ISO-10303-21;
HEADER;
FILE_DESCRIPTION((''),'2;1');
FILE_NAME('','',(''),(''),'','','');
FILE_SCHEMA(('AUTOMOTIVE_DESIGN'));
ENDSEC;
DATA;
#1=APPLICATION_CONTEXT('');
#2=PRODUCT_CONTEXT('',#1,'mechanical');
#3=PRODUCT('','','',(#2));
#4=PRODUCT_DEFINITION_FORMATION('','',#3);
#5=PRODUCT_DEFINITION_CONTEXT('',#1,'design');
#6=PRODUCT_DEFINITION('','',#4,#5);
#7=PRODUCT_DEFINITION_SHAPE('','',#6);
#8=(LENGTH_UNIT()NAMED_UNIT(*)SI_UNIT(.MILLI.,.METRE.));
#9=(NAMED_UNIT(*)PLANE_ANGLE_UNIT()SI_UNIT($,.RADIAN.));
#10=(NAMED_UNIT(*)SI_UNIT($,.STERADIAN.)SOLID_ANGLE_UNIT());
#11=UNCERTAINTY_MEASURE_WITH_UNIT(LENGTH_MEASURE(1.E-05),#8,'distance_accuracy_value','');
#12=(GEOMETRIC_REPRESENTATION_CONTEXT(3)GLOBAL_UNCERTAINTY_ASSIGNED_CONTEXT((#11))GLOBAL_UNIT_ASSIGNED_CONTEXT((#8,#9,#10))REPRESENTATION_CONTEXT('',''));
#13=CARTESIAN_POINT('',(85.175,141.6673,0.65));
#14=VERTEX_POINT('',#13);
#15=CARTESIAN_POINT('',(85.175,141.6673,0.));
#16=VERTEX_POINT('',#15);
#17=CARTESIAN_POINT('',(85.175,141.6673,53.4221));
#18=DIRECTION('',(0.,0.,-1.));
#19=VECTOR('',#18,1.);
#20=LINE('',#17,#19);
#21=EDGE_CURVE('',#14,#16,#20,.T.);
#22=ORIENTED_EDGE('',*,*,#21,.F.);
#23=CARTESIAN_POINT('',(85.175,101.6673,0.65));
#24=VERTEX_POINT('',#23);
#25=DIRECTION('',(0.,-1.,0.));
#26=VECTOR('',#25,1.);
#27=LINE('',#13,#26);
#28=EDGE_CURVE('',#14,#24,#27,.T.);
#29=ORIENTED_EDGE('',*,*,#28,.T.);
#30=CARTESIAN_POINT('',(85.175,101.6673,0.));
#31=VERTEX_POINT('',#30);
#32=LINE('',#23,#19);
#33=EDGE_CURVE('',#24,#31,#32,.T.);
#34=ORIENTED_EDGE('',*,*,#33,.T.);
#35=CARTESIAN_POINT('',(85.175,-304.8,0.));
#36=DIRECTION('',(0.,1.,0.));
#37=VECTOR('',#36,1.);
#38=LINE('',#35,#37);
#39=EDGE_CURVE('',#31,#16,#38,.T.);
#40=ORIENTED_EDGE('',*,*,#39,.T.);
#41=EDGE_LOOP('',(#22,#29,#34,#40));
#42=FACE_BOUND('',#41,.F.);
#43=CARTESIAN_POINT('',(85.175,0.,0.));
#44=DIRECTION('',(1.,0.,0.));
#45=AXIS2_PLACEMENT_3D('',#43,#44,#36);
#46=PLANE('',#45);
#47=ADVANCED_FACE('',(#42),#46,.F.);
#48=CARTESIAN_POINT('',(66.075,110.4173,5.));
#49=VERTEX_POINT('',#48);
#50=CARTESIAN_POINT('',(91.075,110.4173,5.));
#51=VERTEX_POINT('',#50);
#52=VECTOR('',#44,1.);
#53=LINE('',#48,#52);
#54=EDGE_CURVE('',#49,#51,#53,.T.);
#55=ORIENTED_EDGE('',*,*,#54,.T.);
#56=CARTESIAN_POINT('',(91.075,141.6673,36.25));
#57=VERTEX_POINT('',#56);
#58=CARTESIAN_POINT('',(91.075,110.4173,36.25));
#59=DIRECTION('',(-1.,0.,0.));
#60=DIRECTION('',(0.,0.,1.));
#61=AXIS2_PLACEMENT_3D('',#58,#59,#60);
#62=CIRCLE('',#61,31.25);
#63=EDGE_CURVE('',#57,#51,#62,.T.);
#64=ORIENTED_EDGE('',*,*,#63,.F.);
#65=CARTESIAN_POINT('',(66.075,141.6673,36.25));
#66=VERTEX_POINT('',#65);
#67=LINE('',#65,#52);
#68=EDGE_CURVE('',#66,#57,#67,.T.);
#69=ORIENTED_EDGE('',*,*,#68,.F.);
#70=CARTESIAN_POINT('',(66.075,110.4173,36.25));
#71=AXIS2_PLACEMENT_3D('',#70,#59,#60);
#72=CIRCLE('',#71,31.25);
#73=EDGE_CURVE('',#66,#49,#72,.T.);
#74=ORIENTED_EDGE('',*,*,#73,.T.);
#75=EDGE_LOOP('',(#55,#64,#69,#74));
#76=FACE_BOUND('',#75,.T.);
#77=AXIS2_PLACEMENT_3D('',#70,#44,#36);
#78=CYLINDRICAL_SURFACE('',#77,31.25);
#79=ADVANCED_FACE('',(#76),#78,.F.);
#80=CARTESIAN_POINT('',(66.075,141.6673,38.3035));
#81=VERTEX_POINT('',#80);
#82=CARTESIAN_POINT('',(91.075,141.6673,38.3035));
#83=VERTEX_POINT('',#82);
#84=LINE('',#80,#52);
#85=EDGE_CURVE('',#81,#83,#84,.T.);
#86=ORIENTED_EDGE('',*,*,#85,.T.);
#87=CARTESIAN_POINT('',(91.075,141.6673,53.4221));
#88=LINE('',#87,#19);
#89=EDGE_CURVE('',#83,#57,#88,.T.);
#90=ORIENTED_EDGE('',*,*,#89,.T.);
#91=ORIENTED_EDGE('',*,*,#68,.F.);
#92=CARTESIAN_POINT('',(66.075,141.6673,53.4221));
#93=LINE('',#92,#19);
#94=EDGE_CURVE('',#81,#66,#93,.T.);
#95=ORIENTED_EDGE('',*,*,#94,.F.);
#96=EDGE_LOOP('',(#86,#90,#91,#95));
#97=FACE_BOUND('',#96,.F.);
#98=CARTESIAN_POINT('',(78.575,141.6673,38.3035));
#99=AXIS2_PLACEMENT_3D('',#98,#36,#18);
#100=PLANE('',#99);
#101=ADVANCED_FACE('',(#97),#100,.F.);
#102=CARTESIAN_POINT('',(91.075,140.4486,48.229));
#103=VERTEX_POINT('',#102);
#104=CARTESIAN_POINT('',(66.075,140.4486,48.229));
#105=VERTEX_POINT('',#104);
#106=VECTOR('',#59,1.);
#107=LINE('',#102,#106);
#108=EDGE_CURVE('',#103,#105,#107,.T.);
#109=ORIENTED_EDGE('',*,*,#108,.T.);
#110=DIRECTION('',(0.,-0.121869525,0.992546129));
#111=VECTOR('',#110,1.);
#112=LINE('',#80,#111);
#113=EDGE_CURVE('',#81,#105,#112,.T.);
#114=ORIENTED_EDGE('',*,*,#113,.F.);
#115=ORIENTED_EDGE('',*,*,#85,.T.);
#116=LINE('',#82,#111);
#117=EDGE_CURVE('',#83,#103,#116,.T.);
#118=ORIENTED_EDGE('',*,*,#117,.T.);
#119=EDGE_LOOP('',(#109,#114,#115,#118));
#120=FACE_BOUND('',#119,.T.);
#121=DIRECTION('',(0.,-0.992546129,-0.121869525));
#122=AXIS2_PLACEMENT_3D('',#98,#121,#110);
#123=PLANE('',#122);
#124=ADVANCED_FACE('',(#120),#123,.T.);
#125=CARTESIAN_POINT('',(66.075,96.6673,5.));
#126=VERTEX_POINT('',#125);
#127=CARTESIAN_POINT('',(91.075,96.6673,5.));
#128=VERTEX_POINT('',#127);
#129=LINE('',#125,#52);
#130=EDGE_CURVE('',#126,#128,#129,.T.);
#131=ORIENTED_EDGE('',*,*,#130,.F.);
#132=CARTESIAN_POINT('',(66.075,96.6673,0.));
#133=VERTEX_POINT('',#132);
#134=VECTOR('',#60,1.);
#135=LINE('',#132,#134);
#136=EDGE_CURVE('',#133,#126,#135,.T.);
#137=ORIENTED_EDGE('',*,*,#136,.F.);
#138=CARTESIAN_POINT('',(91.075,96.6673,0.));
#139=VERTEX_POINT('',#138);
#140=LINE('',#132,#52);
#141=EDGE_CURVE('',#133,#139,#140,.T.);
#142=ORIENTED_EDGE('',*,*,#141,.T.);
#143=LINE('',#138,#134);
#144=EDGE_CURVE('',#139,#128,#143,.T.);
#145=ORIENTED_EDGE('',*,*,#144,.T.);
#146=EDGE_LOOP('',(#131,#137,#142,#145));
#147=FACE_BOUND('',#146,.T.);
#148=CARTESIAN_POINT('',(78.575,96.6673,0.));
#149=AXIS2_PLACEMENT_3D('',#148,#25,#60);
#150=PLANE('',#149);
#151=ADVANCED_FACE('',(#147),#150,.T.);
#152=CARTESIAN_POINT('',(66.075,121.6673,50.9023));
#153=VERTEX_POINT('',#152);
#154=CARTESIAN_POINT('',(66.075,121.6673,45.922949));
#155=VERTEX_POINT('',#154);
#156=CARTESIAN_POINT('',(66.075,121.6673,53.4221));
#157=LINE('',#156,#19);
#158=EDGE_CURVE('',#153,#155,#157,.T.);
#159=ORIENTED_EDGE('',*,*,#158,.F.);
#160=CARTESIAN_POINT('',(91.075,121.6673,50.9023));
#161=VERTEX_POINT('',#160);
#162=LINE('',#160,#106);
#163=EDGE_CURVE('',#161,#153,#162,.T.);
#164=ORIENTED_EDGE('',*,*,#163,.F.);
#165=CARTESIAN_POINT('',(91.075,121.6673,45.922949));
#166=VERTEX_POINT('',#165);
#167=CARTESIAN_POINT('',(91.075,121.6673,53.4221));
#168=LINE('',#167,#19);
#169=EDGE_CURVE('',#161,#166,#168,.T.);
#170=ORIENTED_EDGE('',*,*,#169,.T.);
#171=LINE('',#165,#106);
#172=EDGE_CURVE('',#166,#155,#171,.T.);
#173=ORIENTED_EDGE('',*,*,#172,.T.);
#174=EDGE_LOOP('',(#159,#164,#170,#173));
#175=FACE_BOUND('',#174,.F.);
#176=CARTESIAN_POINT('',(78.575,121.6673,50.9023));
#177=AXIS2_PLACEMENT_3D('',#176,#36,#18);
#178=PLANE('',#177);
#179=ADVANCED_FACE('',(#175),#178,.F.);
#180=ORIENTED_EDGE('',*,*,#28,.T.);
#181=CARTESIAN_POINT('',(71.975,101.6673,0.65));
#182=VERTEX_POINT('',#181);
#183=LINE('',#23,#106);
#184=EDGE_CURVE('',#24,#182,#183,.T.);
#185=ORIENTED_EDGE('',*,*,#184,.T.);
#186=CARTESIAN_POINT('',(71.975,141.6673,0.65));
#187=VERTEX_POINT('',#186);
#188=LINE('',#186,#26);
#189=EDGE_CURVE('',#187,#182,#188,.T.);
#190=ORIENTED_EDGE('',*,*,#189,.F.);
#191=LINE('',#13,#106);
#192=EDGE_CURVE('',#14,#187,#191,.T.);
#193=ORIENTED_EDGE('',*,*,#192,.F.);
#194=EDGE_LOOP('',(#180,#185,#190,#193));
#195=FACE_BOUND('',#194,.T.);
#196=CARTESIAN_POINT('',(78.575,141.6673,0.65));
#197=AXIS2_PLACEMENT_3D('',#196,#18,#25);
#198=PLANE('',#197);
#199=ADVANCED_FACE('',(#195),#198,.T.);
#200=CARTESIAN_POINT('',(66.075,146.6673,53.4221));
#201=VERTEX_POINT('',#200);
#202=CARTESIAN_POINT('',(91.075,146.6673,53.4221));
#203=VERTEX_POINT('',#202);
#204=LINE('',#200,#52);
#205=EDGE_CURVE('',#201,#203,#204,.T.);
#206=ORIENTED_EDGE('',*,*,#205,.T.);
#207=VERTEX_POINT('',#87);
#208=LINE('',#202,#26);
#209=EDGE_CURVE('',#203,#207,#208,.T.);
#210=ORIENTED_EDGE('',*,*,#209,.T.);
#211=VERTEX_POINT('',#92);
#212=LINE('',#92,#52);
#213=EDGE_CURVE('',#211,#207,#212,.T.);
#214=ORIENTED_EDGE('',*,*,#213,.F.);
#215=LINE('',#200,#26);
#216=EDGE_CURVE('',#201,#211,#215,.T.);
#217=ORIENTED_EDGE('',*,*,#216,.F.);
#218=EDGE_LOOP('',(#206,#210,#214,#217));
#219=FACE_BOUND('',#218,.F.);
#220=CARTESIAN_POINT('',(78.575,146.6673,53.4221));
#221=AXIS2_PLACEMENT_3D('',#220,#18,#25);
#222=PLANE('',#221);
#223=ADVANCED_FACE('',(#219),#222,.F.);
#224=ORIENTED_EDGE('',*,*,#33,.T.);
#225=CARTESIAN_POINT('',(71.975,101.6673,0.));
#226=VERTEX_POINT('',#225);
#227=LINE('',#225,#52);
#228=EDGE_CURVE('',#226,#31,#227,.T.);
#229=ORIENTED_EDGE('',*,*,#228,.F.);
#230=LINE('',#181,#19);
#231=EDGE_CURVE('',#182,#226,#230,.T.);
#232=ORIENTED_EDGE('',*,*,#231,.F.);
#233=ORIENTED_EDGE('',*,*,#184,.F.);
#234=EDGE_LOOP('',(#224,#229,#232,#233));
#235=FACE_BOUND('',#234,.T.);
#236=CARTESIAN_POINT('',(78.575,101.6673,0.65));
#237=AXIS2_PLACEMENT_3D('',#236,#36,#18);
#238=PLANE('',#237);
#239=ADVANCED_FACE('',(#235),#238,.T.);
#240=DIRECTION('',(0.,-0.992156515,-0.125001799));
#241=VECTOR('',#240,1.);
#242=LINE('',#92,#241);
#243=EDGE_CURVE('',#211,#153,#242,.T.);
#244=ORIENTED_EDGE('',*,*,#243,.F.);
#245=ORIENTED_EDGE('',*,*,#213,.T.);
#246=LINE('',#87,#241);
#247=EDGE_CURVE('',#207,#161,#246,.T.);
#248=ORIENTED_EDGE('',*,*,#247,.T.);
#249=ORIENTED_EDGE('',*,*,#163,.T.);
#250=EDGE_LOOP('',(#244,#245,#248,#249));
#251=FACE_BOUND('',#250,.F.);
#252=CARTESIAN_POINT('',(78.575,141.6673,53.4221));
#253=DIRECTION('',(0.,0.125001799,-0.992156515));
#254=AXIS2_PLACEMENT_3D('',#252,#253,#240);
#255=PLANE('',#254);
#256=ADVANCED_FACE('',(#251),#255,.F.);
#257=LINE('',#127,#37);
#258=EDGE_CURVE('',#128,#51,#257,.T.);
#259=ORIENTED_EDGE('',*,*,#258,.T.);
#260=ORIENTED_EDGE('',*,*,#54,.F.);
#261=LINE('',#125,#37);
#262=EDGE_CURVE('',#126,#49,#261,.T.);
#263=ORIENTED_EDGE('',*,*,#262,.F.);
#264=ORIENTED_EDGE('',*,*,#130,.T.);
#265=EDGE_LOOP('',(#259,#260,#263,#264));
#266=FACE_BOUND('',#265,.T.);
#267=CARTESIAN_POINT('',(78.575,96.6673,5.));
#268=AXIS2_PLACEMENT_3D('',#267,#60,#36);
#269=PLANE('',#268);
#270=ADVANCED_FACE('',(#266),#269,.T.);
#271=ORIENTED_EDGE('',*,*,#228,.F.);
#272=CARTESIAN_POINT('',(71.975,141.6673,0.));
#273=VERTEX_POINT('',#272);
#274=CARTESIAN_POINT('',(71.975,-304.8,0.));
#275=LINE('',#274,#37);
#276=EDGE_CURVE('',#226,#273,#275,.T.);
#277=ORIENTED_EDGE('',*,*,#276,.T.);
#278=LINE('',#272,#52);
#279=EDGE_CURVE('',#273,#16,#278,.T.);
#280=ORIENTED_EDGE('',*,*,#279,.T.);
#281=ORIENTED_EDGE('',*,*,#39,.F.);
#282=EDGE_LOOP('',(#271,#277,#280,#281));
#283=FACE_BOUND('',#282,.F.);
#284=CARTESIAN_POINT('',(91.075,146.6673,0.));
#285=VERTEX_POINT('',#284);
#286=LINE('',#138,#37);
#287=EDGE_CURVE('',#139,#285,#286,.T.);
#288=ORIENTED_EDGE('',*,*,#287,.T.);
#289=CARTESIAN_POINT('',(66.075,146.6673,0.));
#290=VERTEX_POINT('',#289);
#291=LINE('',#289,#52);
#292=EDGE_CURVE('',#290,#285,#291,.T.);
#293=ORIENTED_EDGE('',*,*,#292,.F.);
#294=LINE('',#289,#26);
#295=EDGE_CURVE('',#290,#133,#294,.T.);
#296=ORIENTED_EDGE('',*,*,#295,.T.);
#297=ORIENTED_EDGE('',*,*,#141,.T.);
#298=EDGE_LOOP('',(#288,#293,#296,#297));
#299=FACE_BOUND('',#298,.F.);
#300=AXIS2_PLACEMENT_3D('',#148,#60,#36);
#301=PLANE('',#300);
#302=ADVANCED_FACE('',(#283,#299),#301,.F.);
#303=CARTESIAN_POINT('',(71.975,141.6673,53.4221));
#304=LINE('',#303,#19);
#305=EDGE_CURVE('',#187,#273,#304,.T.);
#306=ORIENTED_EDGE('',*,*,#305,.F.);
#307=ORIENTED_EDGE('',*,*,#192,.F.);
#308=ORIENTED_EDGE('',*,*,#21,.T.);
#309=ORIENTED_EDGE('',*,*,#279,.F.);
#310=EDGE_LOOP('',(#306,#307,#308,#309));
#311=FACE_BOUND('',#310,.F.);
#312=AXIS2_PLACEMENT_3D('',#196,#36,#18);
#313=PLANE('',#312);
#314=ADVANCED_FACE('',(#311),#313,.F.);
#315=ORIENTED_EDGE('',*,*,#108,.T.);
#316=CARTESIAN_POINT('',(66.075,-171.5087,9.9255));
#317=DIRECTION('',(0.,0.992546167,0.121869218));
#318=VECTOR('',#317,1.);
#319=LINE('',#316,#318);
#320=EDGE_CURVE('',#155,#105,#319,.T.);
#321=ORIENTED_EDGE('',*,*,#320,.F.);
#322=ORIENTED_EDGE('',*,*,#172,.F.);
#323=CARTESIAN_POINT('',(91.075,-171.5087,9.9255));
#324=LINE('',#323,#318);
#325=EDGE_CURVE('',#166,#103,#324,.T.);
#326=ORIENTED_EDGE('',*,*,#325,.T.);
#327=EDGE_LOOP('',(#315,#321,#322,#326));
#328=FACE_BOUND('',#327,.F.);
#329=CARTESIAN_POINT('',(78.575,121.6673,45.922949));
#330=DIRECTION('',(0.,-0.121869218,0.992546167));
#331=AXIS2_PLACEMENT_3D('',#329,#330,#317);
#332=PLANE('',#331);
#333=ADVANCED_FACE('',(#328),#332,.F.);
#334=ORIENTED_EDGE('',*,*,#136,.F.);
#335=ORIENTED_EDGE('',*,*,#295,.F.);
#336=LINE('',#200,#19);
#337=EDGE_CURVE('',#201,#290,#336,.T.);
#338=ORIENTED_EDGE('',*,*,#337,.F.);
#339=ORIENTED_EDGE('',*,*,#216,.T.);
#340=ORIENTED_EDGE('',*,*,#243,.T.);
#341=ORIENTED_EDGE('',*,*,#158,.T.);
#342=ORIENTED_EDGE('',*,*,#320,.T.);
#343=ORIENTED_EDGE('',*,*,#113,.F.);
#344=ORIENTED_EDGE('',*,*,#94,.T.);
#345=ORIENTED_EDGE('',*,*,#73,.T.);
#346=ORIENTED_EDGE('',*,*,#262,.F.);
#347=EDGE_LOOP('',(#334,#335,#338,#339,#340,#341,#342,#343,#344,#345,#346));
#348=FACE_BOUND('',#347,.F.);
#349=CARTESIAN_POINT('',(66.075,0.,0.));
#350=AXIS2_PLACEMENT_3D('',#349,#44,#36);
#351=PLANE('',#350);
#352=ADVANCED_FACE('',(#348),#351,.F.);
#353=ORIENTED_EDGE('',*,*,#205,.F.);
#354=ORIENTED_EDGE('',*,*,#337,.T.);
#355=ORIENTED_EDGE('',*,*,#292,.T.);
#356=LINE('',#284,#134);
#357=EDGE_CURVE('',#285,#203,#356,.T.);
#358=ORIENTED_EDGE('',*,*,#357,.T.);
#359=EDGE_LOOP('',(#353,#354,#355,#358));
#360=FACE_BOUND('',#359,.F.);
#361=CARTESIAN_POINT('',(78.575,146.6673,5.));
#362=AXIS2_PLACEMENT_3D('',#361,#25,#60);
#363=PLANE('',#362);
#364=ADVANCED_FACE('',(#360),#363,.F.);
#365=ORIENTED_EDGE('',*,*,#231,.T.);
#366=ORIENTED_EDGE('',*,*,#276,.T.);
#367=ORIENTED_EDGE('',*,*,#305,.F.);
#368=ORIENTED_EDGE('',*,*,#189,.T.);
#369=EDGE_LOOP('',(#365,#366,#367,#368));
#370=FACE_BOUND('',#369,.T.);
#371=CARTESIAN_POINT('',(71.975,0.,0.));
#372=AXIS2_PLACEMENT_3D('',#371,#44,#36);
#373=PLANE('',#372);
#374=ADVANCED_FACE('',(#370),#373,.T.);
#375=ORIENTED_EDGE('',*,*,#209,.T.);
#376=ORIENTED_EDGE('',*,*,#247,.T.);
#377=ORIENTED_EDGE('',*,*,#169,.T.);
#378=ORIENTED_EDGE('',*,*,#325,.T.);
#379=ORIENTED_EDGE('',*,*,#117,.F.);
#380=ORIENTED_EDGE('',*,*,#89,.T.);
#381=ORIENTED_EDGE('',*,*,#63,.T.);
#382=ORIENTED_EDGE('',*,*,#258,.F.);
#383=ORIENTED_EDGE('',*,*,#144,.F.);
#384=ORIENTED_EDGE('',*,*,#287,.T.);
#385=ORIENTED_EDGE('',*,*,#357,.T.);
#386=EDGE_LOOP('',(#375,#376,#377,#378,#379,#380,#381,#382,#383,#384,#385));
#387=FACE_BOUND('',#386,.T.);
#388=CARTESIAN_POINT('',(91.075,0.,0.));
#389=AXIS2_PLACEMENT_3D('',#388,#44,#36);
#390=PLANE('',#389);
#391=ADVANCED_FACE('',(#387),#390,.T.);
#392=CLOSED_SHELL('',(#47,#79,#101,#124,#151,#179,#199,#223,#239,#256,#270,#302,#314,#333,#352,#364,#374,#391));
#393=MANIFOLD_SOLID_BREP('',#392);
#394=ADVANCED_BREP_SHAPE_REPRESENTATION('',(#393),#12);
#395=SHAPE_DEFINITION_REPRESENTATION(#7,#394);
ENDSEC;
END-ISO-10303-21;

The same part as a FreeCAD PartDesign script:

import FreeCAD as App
import Part
import Sketcher

V = App.Vector
Q = App.Units.Quantity


def edges_at(feature, points):
    """Names of the edges that pass closest to the given points."""
    edges = feature.Shape.Edges
    near = lambda p: min(range(len(edges)), key=lambda i: edges[i].distToShape(Part.Vertex(*p))[0])
    return sorted({f"Edge{near(p) + 1}" for p in points})


def add_polygon(sketch, points):
    """Adds a closed chain of lines whose ends are joined by coincident constraints."""
    first, n = sketch.GeometryCount, len(points)
    for a, b in zip(points, points[1:] + points[:1]):
        sketch.addGeometry(Part.LineSegment(App.Vector(*a, 0), App.Vector(*b, 0)), False)
    for i in range(n):
        sketch.addConstraint(Sketcher.Constraint("Coincident", first + i, 2, first + (i + 1) % n, 1))

doc = App.newDocument("Part")
body = doc.addObject("PartDesign::Body", "Body")

sketch1 = body.newObject("Sketcher::SketchObject", "Sketch")
sketch1.AttachmentSupport = (doc.getObject("YZ_Plane"), [""])
sketch1.MapMode = "FlatFace"
sketch1.AttachmentOffset = App.Placement(V(0, 0, 78.575), App.Rotation())
add_polygon(sketch1, [(140.4, 48.2), (141.7, 38.3), (141.7, 5), (96.7, 5), (96.7, 0), (146.7, 0), (146.7, 53.4), (141.7, 53.4), (121.7, 50.9), (121.7, 45.9)])
sketch1.addConstraint([
    Sketcher.Constraint("Vertical", 1),
    Sketcher.Constraint("Horizontal", 2),
    Sketcher.Constraint("Vertical", 3),
    Sketcher.Constraint("Horizontal", 4),
    Sketcher.Constraint("Vertical", 5),
    Sketcher.Constraint("Horizontal", 6),
    Sketcher.Constraint("Vertical", 8),
    Sketcher.Constraint("PointOnObject", 3, 2, -1),
    Sketcher.Constraint("Perpendicular", 0, 9),
    Sketcher.Constraint("Vertical", 1, 2, 6, 2),
    Sketcher.Constraint("Equal", 6, 3),
    Sketcher.Constraint("DistanceX", 4, 1, 4, 2, 50.0),
    Sketcher.Constraint("DistanceX", 6, 2, 6, 1, 5.0),
    Sketcher.Constraint("DistanceX", 7, 2, 6, 2, 20.0),
    Sketcher.Constraint("Angle", 0, Q("-83 deg")),
    Sketcher.Constraint("Distance", 0, 10.0),
    Sketcher.Constraint("Angle", 7, Q("-172.8191 deg")),
    Sketcher.Constraint("DistanceY", 5, 1, 5, 2, 53.422),
    Sketcher.Constraint("DistanceY", 1, 2, 1, 1, 33.3035),
    Sketcher.Constraint("DistanceX", -1, 1, 0, 2, 141.6673),
])
pad1 = body.newObject("PartDesign::Pad", "Pad")
pad1.Profile = sketch1
pad1.Length = 25
pad1.Midplane = True

sketch2 = body.newObject("Sketcher::SketchObject", "Sketch001")
sketch2.AttachmentSupport = (doc.getObject("YZ_Plane"), [""])
sketch2.MapMode = "FlatFace"
sketch2.AttachmentOffset = App.Placement(V(0, 0, 78.575), App.Rotation())
add_polygon(sketch2, [(101.7, 0.7), (101.7, 0), (141.7, 0), (141.7, 0.7)])
sketch2.addConstraint([
    Sketcher.Constraint("Vertical", 0),
    Sketcher.Constraint("Horizontal", 1),
    Sketcher.Constraint("Vertical", 2),
    Sketcher.Constraint("Horizontal", 3),
    Sketcher.Constraint("PointOnObject", 0, 2, -1),
    Sketcher.Constraint("DistanceX", 1, 1, 1, 2, 40.0),
    Sketcher.Constraint("DistanceY", 0, 2, 0, 1, 0.65),
    Sketcher.Constraint("DistanceX", -1, 1, 0, 2, 101.6673),
])
pocket1 = body.newObject("PartDesign::Pocket", "Pocket")
pocket1.Profile = sketch2
pocket1.Length = 13.2
pocket1.Midplane = True
doc.recompute()

fillet = body.newObject("PartDesign::Fillet", "Fillet")
fillet.Base = (pocket1, edges_at(pocket1, [(78.575, 141.667, 5)]))
fillet.Radius = 31.25

doc.recompute()
